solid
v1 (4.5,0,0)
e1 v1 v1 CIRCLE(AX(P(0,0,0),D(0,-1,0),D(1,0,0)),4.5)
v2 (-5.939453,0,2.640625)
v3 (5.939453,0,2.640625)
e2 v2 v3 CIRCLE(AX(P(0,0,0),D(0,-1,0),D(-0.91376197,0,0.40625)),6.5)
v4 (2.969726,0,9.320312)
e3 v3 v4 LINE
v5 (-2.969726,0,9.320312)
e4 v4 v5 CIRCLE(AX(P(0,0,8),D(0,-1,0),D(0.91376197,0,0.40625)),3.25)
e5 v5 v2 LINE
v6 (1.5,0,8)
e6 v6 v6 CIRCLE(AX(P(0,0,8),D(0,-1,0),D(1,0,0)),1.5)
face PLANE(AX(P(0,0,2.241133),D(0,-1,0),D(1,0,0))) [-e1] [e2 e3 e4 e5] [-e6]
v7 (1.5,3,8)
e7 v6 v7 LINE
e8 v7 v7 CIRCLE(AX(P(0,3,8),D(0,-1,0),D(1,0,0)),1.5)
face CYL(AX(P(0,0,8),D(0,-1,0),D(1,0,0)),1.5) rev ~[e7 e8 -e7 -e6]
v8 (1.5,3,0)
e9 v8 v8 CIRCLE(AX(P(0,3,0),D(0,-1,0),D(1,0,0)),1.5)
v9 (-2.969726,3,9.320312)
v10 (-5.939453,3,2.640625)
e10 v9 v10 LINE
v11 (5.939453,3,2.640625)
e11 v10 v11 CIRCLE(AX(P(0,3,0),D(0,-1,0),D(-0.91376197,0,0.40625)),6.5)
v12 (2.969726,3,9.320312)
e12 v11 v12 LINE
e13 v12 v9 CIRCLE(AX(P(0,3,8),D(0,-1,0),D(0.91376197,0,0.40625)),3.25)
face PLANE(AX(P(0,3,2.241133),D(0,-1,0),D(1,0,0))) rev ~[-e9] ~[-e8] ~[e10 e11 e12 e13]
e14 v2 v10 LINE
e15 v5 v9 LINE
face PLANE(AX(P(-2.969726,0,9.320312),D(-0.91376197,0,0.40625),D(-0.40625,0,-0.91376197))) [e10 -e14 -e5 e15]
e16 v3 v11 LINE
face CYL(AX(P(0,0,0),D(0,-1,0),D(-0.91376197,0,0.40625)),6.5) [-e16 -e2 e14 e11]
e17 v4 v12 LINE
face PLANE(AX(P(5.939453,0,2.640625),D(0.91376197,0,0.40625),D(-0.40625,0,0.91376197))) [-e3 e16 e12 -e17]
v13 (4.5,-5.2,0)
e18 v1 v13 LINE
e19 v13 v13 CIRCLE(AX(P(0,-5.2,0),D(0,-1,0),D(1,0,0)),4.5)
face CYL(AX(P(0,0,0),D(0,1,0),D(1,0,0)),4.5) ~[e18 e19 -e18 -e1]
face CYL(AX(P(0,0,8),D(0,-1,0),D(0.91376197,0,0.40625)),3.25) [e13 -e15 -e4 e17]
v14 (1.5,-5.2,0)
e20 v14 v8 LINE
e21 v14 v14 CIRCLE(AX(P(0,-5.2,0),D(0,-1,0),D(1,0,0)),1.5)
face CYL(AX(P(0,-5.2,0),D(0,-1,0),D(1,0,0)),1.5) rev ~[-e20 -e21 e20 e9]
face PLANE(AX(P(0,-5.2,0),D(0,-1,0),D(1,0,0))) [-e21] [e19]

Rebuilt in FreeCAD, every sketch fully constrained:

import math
import FreeCAD as App
import Part
import Sketcher
from FreeCAD import Vector

doc = App.newDocument("Part")
params = doc.addObject("Spreadsheet::Sheet", "Params")
for row, (alias, value) in enumerate([
    ("sketch1_diameter", "3 mm"),
    ("sketch1_radius", "6.5 mm"),
    ("sketch1_radius2", "3.25 mm"),
    ("pad1_length", "3 mm"),
    ("sketch2_diameter", "9 mm"),
    ("pad2_length", "5.2 mm"),
    ("sketch3_diameter", "3 mm"),
    ("pocket1_length", "20 mm"),
], start=1):
    params.set(f"A{row}", alias)
    params.set(f"B{row}", "=" + value)
    params.setAlias(f"B{row}", alias)

body = doc.addObject("PartDesign::Body", "Body")

# Sketch on XZ plane
sketch1 = doc.addObject("Sketcher::SketchObject", "Sketch")
body.addObject(sketch1)
sketch1.AttachmentSupport = (doc.XZ_Plane, [""])
sketch1.MapMode = "FlatFace"
sketch1.addGeometry([
    Part.LineSegment(Vector(5.9, 2.6, 0), Vector(3, 9.3, 0)),  # 0
    Part.ArcOfCircle(Part.Circle(Vector(0, 8, 0), Vector(0, 0, 1), 3.2), math.radians(24), math.radians(156)),  # 1
    Part.LineSegment(Vector(-3, 9.3, 0), Vector(-5.9, 2.6, 0)),  # 2
    Part.ArcOfCircle(Part.Circle(Vector(0, 0, 0), Vector(0, 0, 1), 6.5), math.radians(156), math.radians(384)),  # 3
    Part.Circle(Vector(0, 8, 0), Vector(0, 0, 1), 1.5),  # 4
], False)
sketch1.addConstraint([
    Sketcher.Constraint("Tangent", 0, 2, 1, 1),
    Sketcher.Constraint("Tangent", 1, 2, 2, 1),
    Sketcher.Constraint("Tangent", 2, 2, 3, 1),
    Sketcher.Constraint("Tangent", 3, 2, 0, 1),
    Sketcher.Constraint("Coincident", 3, 3, -1, 1),
    Sketcher.Constraint("Coincident", 4, 3, 1, 3),
    Sketcher.Constraint("PointOnObject", 1, 3, -2),
    Sketcher.Constraint("Diameter", 4, 3.0),
    Sketcher.Constraint("Radius", 3, 6.5),
    Sketcher.Constraint("Radius", 1, 3.25),
    Sketcher.Constraint("DistanceY", -1, 1, 1, 3, 8.0),
])
sketch1.setExpression("Constraints[7]", "Params.sketch1_diameter")
sketch1.setExpression("Constraints[8]", "Params.sketch1_radius")
sketch1.setExpression("Constraints[9]", "Params.sketch1_radius2")
pad1 = doc.addObject("PartDesign::Pad", "Pad")
body.addObject(pad1)
pad1.Profile = sketch1
pad1.setExpression("Length", "Params.pad1_length")
pad1.Reversed = True

# Sketch on XZ plane
sketch2 = doc.addObject("Sketcher::SketchObject", "Sketch001")
body.addObject(sketch2)
sketch2.AttachmentSupport = (doc.XZ_Plane, [""])
sketch2.MapMode = "FlatFace"
sketch2.addGeometry(Part.Circle(Vector(0, 0, 0), Vector(0, 0, 1), 4.5), False)
sketch2.addConstraint([
    Sketcher.Constraint("Coincident", 0, 3, -1, 1),
    Sketcher.Constraint("Diameter", 0, 9.0),
])
sketch2.setExpression("Constraints[1]", "Params.sketch2_diameter")
pad2 = doc.addObject("PartDesign::Pad", "Pad001")
body.addObject(pad2)
pad2.Profile = sketch2
pad2.setExpression("Length", "Params.pad2_length")

# Sketch on XZ plane
sketch3 = doc.addObject("Sketcher::SketchObject", "Sketch002")
body.addObject(sketch3)
sketch3.AttachmentSupport = (doc.XZ_Plane, [""])
sketch3.MapMode = "FlatFace"
sketch3.AttachmentOffset = App.Placement(Vector(0, 0, 5.2), App.Rotation())
sketch3.addGeometry(Part.Circle(Vector(0, 0, 0), Vector(0, 0, 1), 1.5), False)
sketch3.addConstraint([
    Sketcher.Constraint("Coincident", 0, 3, -1, 1),
    Sketcher.Constraint("Diameter", 0, 3.0),
])
sketch3.setExpression("Constraints[1]", "Params.sketch3_diameter")
pocket1 = doc.addObject("PartDesign::Pocket", "Pocket")
body.addObject(pocket1)
pocket1.Profile = sketch3
pocket1.setExpression("Length", "Params.pocket1_length")

doc.recompute()
